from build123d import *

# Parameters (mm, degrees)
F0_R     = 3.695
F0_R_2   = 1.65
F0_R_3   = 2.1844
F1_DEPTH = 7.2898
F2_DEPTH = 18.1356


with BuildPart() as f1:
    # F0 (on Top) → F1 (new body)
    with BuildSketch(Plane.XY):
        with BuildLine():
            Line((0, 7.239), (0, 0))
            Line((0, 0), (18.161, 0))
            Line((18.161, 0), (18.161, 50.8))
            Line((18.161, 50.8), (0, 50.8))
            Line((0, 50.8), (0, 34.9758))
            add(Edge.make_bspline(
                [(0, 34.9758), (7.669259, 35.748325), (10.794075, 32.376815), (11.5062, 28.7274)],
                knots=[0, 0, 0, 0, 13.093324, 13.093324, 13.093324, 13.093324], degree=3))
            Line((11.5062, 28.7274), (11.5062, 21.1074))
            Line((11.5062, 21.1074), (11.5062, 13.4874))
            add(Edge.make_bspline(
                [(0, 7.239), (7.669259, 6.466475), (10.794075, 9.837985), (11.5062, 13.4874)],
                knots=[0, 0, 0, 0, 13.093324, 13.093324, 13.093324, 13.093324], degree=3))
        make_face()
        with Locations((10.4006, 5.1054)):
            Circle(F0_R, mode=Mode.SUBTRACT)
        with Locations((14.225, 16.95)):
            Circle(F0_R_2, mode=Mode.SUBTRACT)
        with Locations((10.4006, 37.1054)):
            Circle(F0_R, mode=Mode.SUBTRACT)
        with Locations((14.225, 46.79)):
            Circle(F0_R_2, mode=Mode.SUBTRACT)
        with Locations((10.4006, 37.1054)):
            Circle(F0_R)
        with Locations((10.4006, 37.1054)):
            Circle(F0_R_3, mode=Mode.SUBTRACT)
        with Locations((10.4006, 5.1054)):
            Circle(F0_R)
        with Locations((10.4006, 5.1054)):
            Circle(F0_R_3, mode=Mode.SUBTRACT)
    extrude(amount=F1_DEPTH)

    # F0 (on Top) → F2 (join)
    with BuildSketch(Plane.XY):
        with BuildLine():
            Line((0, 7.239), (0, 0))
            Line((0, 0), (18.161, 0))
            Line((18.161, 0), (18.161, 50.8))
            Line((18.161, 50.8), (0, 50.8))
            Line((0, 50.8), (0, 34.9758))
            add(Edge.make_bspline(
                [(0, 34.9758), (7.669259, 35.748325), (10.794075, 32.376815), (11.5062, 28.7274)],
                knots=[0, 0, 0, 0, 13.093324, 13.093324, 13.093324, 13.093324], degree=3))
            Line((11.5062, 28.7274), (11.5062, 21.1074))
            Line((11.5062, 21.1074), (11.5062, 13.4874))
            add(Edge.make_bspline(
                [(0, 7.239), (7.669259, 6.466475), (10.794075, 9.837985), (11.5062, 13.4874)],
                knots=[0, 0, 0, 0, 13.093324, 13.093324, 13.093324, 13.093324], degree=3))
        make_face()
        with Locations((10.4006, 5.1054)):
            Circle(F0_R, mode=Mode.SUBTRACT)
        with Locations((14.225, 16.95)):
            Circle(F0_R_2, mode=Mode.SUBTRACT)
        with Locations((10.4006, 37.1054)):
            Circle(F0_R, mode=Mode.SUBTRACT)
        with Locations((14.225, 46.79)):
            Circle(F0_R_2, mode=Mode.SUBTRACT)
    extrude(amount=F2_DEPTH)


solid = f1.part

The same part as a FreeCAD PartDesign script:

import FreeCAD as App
import Part
import Sketcher
from FreeCAD import Vector
Q = App.Units.Quantity

doc = App.newDocument("Part")
body = doc.addObject("PartDesign::Body", "Body")

# Sketch on XY plane
sketch1 = doc.addObject("Sketcher::SketchObject", "Sketch")
body.addObject(sketch1)
sketch1.AttachmentSupport = (doc.XY_Plane, [""])
sketch1.MapMode = "FlatFace"
sketch1.addGeometry([
    Part.LineSegment(Vector(0, 7.239, 0), Vector(0, 0, 0)),  # 0
    Part.LineSegment(Vector(0, 0, 0), Vector(18.161, 0, 0)),  # 1
    Part.LineSegment(Vector(18.161, 0, 0), Vector(18.161, 50.8, 0)),  # 2
    Part.LineSegment(Vector(18.161, 50.8, 0), Vector(0, 50.8, 0)),  # 3
    Part.LineSegment(Vector(0, 50.8, 0), Vector(0, 34.9758, 0)),  # 4
    Part.BSplineCurve([Vector(0, 34.9758, 0), Vector(7.669259, 35.748325, 0), Vector(10.794075, 32.376815, 0), Vector(11.5062, 28.7274, 0)], [4, 4], [0, 13.093324], False, 3, [1, 1, 1, 1], False),  # 5
    Part.LineSegment(Vector(11.5062, 28.7274, 0), Vector(11.5062, 13.4874, 0)),  # 6
    Part.BSplineCurve([Vector(0, 7.239, 0), Vector(7.669259, 6.466475, 0), Vector(10.794075, 9.837985, 0), Vector(11.5062, 13.4874, 0)], [4, 4], [0, 13.093324], False, 3, [1, 1, 1, 1], False),  # 7
    Part.Circle(Vector(10.4006, 5.1054, 0), Vector(0, 0, 1), 2.1844),  # 8
    Part.Circle(Vector(14.225, 16.95, 0), Vector(0, 0, 1), 1.65),  # 9
    Part.Circle(Vector(10.4006, 37.1054, 0), Vector(0, 0, 1), 2.1844),  # 10
    Part.Circle(Vector(14.225, 46.79, 0), Vector(0, 0, 1), 1.65),  # 11
], False)
sketch1.addConstraint([
    Sketcher.Constraint("Block", 5),
    Sketcher.Constraint("Block", 7),
    Sketcher.Constraint("Coincident", 0, 2, 1, 1),
    Sketcher.Constraint("Coincident", 1, 2, 2, 1),
    Sketcher.Constraint("Coincident", 2, 2, 3, 1),
    Sketcher.Constraint("Coincident", 3, 2, 4, 1),
    Sketcher.Constraint("Coincident", 4, 2, 5, 1),
    Sketcher.Constraint("Coincident", 5, 2, 6, 1),
    Sketcher.Constraint("Coincident", 6, 2, 7, 2),
    Sketcher.Constraint("Coincident", 7, 1, 0, 1),
    Sketcher.Constraint("Vertical", 0),
    Sketcher.Constraint("Horizontal", 1),
    Sketcher.Constraint("Vertical", 2),
    Sketcher.Constraint("Horizontal", 3),
    Sketcher.Constraint("Vertical", 4),
    Sketcher.Constraint("Equal", 8, 10),
    Sketcher.Constraint("Equal", 9, 11),
    Sketcher.Constraint("PointOnObject", 1, 2, -1),
    Sketcher.Constraint("Vertical", 8, 3, 10, 3),
    Sketcher.Constraint("Vertical", 9, 3, 11, 3),
    Sketcher.Constraint("DistanceY", 2, 1, 2, 2, Q("2 in")),
    Sketcher.Constraint("Diameter", 8, Q("0.172 in")),
    Sketcher.Constraint("Diameter", 9, Q("3.3 mm")),
    Sketcher.Constraint("DistanceX", 1, 1, 1, 2, Q("0.715 in")),
    Sketcher.Constraint("DistanceY", 8, 3, 6, 2, Q("0.33 in")),
    Sketcher.Constraint("DistanceX", -1, 1, 8, 3, Q("10.4006 mm")),
    Sketcher.Constraint("DistanceX", -1, 1, 9, 3, Q("14.225 mm")),
    Sketcher.Constraint("DistanceY", -1, 1, 9, 3, Q("16.95 mm")),
    Sketcher.Constraint("DistanceY", -1, 1, 10, 3, Q("37.1054 mm")),
    Sketcher.Constraint("DistanceY", -1, 1, 11, 3, Q("46.79 mm")),
])
pad1 = doc.addObject("PartDesign::Pad", "Pad")
body.addObject(pad1)
pad1.Profile = sketch1
pad1.Length = Q("0.287 in")

# Sketch on XY plane
sketch2 = doc.addObject("Sketcher::SketchObject", "Sketch001")
body.addObject(sketch2)
sketch2.AttachmentSupport = (doc.XY_Plane, [""])
sketch2.MapMode = "FlatFace"
sketch2.addGeometry([
    Part.LineSegment(Vector(0, 7.239, 0), Vector(0, 0, 0)),  # 0
    Part.LineSegment(Vector(0, 0, 0), Vector(18.161, 0, 0)),  # 1
    Part.LineSegment(Vector(18.161, 0, 0), Vector(18.161, 50.8, 0)),  # 2
    Part.LineSegment(Vector(18.161, 50.8, 0), Vector(0, 50.8, 0)),  # 3
    Part.LineSegment(Vector(0, 50.8, 0), Vector(0, 34.9758, 0)),  # 4
    Part.BSplineCurve([Vector(0, 34.9758, 0), Vector(7.669259, 35.748325, 0), Vector(10.794075, 32.376815, 0), Vector(11.5062, 28.7274, 0)], [4, 4], [0, 13.093324], False, 3, [1, 1, 1, 1], False),  # 5
    Part.LineSegment(Vector(11.5062, 28.7274, 0), Vector(11.5062, 13.4874, 0)),  # 6
    Part.BSplineCurve([Vector(0, 7.239, 0), Vector(7.669259, 6.466475, 0), Vector(10.794075, 9.837985, 0), Vector(11.5062, 13.4874, 0)], [4, 4], [0, 13.093324], False, 3, [1, 1, 1, 1], False),  # 7
    Part.Circle(Vector(10.4006, 5.1054, 0), Vector(0, 0, 1), 3.695),  # 8
    Part.Circle(Vector(14.225, 16.95, 0), Vector(0, 0, 1), 1.65),  # 9
    Part.Circle(Vector(10.4006, 37.1054, 0), Vector(0, 0, 1), 3.695),  # 10
    Part.Circle(Vector(14.225, 46.79, 0), Vector(0, 0, 1), 1.65),  # 11
], False)
sketch2.addConstraint([
    Sketcher.Constraint("Block", 5),
    Sketcher.Constraint("Block", 7),
    Sketcher.Constraint("Coincident", 0, 2, 1, 1),
    Sketcher.Constraint("Coincident", 1, 2, 2, 1),
    Sketcher.Constraint("Coincident", 2, 2, 3, 1),
    Sketcher.Constraint("Coincident", 3, 2, 4, 1),
    Sketcher.Constraint("Coincident", 4, 2, 5, 1),
    Sketcher.Constraint("Coincident", 5, 2, 6, 1),
    Sketcher.Constraint("Coincident", 6, 2, 7, 2),
    Sketcher.Constraint("Coincident", 7, 1, 0, 1),
    Sketcher.Constraint("Vertical", 0),
    Sketcher.Constraint("Horizontal", 1),
    Sketcher.Constraint("Vertical", 2),
    Sketcher.Constraint("Horizontal", 3),
    Sketcher.Constraint("Vertical", 4),
    Sketcher.Constraint("Equal", 8, 10),
    Sketcher.Constraint("Equal", 9, 11),
    Sketcher.Constraint("PointOnObject", 1, 2, -1),
    Sketcher.Constraint("Vertical", 8, 3, 10, 3),
    Sketcher.Constraint("Vertical", 9, 3, 11, 3),
    Sketcher.Constraint("DistanceY", 2, 1, 2, 2, Q("2 in")),
    Sketcher.Constraint("Diameter", 8, Q("7.39 mm")),
    Sketcher.Constraint("Diameter", 9, Q("3.3 mm")),
    Sketcher.Constraint("DistanceX", 1, 1, 1, 2, Q("0.715 in")),
    Sketcher.Constraint("DistanceY", 8, 3, 6, 2, Q("0.33 in")),
    Sketcher.Constraint("DistanceX", -1, 1, 8, 3, Q("10.4006 mm")),
    Sketcher.Constraint("DistanceX", -1, 1, 9, 3, Q("14.225 mm")),
    Sketcher.Constraint("DistanceY", -1, 1, 9, 3, Q("16.95 mm")),
    Sketcher.Constraint("DistanceY", -1, 1, 10, 3, Q("37.1054 mm")),
    Sketcher.Constraint("DistanceY", -1, 1, 11, 3, Q("46.79 mm")),
])
pad2 = doc.addObject("PartDesign::Pad", "Pad001")
body.addObject(pad2)
pad2.Profile = sketch2
pad2.Length = Q("0.714 in")

doc.recompute()
